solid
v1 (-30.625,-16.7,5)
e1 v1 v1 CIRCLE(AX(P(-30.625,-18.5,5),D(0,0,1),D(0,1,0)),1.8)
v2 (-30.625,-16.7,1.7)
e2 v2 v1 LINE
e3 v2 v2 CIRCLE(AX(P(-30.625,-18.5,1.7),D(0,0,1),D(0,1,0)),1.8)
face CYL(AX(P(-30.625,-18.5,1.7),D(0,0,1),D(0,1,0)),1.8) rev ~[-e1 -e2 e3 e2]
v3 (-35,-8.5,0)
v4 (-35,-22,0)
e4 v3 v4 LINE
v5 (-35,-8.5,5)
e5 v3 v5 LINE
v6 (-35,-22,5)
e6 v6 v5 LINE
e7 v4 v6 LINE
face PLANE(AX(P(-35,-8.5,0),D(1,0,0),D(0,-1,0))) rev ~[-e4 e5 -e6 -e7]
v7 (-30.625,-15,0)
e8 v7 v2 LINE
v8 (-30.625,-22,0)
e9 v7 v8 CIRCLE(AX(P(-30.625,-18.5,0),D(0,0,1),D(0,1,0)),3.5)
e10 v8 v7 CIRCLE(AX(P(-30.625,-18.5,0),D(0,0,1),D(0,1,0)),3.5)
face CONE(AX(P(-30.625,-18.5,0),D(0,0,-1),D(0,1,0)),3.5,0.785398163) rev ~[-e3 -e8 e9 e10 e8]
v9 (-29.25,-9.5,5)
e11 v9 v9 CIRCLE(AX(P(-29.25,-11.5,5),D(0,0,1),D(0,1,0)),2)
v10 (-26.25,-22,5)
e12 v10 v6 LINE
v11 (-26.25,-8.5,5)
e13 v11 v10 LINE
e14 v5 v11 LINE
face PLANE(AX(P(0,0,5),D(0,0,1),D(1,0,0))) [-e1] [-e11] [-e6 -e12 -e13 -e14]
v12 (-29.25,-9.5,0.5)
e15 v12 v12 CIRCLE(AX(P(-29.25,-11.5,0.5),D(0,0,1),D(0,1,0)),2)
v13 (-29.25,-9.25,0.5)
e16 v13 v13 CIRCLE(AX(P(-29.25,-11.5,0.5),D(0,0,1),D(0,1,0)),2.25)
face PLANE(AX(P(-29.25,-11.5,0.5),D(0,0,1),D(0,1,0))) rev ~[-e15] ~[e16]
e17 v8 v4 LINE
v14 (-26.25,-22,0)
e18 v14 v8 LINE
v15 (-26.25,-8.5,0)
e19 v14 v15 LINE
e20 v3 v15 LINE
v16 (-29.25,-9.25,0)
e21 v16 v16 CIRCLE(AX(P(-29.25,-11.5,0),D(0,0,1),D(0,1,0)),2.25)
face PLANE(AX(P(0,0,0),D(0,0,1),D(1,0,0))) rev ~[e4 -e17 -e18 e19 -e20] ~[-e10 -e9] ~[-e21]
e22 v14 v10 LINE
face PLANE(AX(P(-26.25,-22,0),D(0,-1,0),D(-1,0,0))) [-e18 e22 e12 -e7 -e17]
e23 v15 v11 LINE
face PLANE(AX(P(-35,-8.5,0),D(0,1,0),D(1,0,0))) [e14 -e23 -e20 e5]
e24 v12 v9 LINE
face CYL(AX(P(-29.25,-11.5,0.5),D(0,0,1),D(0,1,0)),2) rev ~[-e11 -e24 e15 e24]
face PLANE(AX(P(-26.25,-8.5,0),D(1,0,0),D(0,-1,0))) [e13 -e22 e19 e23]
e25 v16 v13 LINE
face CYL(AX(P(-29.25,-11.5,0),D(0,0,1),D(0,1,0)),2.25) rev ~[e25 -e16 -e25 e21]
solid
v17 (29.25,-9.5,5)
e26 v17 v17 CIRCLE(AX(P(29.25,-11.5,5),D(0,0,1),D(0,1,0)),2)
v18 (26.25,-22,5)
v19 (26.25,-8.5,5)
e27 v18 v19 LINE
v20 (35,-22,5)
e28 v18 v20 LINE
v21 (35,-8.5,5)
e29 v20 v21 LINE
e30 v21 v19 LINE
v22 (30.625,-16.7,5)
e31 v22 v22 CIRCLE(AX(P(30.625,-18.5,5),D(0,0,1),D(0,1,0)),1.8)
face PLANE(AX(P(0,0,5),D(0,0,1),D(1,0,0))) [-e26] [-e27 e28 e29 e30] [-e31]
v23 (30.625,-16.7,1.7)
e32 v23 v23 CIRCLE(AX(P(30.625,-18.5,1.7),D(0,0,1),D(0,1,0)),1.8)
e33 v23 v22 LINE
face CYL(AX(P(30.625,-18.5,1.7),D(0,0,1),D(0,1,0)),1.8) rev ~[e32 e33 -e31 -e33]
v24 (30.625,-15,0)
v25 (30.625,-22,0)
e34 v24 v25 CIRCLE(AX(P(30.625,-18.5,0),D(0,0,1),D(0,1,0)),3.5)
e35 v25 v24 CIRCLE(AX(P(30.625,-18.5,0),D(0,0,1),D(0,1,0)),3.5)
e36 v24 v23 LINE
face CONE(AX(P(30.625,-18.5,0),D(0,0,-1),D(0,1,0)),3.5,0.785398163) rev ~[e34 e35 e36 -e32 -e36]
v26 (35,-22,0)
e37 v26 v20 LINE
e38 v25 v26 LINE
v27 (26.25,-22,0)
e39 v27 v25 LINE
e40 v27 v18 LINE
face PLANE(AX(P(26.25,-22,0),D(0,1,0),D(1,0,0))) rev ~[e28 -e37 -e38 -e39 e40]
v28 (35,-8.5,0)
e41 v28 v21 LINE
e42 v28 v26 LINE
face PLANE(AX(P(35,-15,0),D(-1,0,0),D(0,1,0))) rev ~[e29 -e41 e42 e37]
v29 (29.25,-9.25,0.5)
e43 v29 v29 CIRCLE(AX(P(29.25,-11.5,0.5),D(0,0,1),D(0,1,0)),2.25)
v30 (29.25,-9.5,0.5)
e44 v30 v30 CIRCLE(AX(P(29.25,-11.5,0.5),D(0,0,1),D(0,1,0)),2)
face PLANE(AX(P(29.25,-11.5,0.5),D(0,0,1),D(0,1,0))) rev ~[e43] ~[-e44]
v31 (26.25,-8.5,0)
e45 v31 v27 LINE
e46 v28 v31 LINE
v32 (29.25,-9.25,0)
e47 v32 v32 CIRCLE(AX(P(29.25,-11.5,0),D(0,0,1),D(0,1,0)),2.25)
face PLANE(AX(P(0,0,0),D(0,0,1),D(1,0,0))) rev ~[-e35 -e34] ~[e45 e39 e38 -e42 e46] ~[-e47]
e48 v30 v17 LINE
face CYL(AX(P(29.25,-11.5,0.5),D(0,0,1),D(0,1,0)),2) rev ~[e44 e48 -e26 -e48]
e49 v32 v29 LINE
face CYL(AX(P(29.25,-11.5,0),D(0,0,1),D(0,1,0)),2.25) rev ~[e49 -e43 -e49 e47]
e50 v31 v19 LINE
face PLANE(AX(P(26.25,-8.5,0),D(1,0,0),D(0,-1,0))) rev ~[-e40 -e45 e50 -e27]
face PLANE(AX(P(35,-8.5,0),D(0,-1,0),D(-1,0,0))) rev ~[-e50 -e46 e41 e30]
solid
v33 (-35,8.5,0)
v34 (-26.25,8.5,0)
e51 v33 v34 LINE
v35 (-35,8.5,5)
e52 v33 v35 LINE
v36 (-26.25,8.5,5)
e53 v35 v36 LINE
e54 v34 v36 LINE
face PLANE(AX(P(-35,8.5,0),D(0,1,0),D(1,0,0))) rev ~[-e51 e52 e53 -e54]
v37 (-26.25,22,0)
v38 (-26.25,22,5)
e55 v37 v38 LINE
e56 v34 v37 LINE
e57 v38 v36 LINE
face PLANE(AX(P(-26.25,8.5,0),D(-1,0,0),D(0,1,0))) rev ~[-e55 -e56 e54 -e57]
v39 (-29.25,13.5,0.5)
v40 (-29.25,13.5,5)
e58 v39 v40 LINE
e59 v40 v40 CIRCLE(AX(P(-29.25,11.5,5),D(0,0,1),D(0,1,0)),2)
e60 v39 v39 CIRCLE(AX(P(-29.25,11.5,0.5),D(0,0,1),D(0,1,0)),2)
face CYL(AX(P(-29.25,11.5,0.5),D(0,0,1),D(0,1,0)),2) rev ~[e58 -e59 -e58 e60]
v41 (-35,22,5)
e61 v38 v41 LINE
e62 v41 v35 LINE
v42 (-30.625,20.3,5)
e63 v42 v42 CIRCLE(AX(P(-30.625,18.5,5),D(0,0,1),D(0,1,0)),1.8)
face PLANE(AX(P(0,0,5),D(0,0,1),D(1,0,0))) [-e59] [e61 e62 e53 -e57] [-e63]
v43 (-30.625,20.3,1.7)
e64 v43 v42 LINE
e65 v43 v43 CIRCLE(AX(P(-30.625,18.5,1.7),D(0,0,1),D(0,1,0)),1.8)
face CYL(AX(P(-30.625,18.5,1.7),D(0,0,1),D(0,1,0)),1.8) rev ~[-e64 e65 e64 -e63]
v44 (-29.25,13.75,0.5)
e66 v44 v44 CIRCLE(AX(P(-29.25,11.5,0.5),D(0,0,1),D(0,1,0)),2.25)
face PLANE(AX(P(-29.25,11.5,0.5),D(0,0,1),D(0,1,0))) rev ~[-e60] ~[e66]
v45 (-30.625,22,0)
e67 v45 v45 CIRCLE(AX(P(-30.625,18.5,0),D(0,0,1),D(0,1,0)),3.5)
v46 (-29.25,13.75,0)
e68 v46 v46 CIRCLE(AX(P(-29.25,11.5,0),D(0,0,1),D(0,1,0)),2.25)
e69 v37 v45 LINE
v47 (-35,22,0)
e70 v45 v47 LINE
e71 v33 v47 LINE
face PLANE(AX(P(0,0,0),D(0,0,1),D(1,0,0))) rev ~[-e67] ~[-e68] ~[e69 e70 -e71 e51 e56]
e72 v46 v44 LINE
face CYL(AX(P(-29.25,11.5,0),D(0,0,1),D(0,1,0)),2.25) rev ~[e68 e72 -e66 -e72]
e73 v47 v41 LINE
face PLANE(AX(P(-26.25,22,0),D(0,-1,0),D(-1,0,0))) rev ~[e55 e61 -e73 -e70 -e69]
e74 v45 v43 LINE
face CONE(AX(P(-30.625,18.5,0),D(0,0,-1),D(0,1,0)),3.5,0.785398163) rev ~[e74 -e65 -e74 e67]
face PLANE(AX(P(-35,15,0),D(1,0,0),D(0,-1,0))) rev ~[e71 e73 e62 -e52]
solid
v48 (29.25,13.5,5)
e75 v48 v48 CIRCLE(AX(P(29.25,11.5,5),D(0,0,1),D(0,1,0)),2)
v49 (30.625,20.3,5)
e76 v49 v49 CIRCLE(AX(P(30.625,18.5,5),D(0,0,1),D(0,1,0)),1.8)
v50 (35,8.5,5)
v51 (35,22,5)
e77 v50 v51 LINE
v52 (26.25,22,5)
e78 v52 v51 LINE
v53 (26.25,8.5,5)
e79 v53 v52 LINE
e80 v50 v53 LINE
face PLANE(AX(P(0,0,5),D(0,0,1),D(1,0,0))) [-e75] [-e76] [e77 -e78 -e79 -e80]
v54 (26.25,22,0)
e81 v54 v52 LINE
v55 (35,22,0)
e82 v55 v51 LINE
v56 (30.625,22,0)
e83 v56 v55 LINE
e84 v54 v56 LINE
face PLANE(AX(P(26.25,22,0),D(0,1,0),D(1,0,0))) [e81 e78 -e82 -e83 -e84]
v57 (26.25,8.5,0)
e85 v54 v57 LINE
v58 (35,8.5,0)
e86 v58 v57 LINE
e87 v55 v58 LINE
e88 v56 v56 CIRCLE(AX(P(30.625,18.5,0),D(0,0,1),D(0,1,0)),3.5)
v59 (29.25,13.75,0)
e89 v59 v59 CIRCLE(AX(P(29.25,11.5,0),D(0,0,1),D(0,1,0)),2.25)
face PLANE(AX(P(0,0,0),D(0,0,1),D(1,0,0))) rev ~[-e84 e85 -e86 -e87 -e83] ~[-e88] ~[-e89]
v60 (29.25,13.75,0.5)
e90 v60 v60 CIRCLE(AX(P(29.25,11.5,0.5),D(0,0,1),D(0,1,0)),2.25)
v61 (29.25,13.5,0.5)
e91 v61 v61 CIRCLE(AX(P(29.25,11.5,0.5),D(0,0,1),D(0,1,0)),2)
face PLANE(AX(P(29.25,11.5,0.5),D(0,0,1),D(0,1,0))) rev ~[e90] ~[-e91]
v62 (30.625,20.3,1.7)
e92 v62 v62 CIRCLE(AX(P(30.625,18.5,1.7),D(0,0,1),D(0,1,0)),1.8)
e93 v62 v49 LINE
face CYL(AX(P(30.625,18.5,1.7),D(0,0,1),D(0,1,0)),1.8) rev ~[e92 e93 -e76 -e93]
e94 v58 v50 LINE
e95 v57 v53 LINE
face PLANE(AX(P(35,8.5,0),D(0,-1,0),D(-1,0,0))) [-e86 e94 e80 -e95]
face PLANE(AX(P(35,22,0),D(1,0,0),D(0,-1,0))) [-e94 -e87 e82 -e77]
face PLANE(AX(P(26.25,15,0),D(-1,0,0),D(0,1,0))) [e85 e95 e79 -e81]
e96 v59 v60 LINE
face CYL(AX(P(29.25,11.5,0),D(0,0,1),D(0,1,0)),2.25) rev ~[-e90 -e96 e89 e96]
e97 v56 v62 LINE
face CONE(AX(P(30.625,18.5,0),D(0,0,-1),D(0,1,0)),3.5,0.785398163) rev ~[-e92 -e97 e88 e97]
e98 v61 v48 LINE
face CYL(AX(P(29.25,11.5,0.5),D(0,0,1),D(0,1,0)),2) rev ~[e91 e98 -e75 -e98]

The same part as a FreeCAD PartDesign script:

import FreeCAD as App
import Part
import Sketcher


def add_polygon(sketch, points):
    """Adds a closed chain of lines whose ends are joined by coincident constraints."""
    first, n = sketch.GeometryCount, len(points)
    for a, b in zip(points, points[1:] + points[:1]):
        sketch.addGeometry(Part.LineSegment(App.Vector(*a, 0), App.Vector(*b, 0)), False)
    for i in range(n):
        sketch.addConstraint(Sketcher.Constraint("Coincident", first + i, 2, first + (i + 1) % n, 1))

doc = App.newDocument("Part")
body = doc.addObject("PartDesign::Body", "Body")
body.AllowCompound = True

# Sketch on XY plane
sketch1 = doc.addObject("Sketcher::SketchObject", "Sketch")
body.addObject(sketch1)
sketch1.AttachmentSupport = (doc.XY_Plane, [""])
sketch1.MapMode = "FlatFace"
add_polygon(sketch1, [(-26, 8), (-26, 22), (-35, 22), (-35, 8)])  # lines 0-3
add_polygon(sketch1, [(-26, -8), (-35, -8), (-35, -22), (-26, -22)])  # lines 4-7
add_polygon(sketch1, [(26, 22), (26, 8), (35, 8), (35, 22)])  # lines 8-11
add_polygon(sketch1, [(26, -8), (26, -22), (35, -22), (35, -8)])  # lines 12-15
sketch1.addConstraint(Sketcher.Constraint("Vertical", 0))
sketch1.addConstraint(Sketcher.Constraint("Horizontal", 1))
sketch1.addConstraint(Sketcher.Constraint("Vertical", 2))
sketch1.addConstraint(Sketcher.Constraint("Horizontal", 3))
sketch1.addConstraint(Sketcher.Constraint("Horizontal", 4))
sketch1.addConstraint(Sketcher.Constraint("Vertical", 5))
sketch1.addConstraint(Sketcher.Constraint("Horizontal", 6))
sketch1.addConstraint(Sketcher.Constraint("Vertical", 7))
sketch1.addConstraint(Sketcher.Constraint("Vertical", 8))
sketch1.addConstraint(Sketcher.Constraint("Horizontal", 9))
sketch1.addConstraint(Sketcher.Constraint("Vertical", 10))
sketch1.addConstraint(Sketcher.Constraint("Horizontal", 11))
sketch1.addConstraint(Sketcher.Constraint("Vertical", 12))
sketch1.addConstraint(Sketcher.Constraint("Horizontal", 13))
sketch1.addConstraint(Sketcher.Constraint("Vertical", 14))
sketch1.addConstraint(Sketcher.Constraint("Horizontal", 15))
sketch1.addConstraint(Sketcher.Constraint("Symmetric", 7, 2, 8, 2, -1, 1))
sketch1.addConstraint(Sketcher.Constraint("Symmetric", 5, 2, 10, 2, -1, 1))
sketch1.addConstraint(Sketcher.Constraint("Symmetric", 0, 2, 12, 2, -1, 1))
sketch1.addConstraint(Sketcher.Constraint("Symmetric", 2, 2, 14, 2, -1, 1))
sketch1.addConstraint(Sketcher.Constraint("Symmetric", 3, 2, 8, 2, -2))
sketch1.addConstraint(Sketcher.Constraint("Symmetric", 1, 2, 10, 2, -2))
sketch1.addConstraint(Sketcher.Constraint("DistanceY", 0, 1, 0, 2, 13.5))
sketch1.addConstraint(Sketcher.Constraint("DistanceY", -1, 1, 0, 2, 22.0))
sketch1.addConstraint(Sketcher.Constraint("DistanceX", 1, 2, -1, 1, 35.0))
sketch1.addConstraint(Sketcher.Constraint("DistanceX", 1, 2, 1, 1, 8.75))
pad1 = doc.addObject("PartDesign::Pad", "Pad")
body.addObject(pad1)
pad1.Profile = sketch1
pad1.Length = 5

# Sketch on XY plane
sketch2 = doc.addObject("Sketcher::SketchObject", "Sketch001")
body.addObject(sketch2)
sketch2.AttachmentSupport = (doc.XY_Plane, [""])
sketch2.MapMode = "FlatFace"
sketch2.addGeometry(Part.Circle(App.Vector(29.2, 11.5, 0), App.Vector(0, 0, 1), 2), False)
sketch2.addGeometry(Part.Circle(App.Vector(29.2, -11.5, 0), App.Vector(0, 0, 1), 2), False)
sketch2.addGeometry(Part.Circle(App.Vector(-29.2, -11.5, 0), App.Vector(0, 0, 1), 2), False)
sketch2.addGeometry(Part.Circle(App.Vector(-29.2, 11.5, 0), App.Vector(0, 0, 1), 2), False)
sketch2.addConstraint(Sketcher.Constraint("Equal", 0, 1))
sketch2.addConstraint(Sketcher.Constraint("Equal", 1, 2))
sketch2.addConstraint(Sketcher.Constraint("Equal", 2, 3))
sketch2.addConstraint(Sketcher.Constraint("Symmetric", 0, 3, 2, 3, -1, 1))
sketch2.addConstraint(Sketcher.Constraint("Symmetric", 1, 3, 3, 3, -1, 1))
sketch2.addConstraint(Sketcher.Constraint("Symmetric", 1, 3, 2, 3, -2))
sketch2.addConstraint(Sketcher.Constraint("Diameter", 0, 4.0))
sketch2.addConstraint(Sketcher.Constraint("DistanceY", 1, 3, 0, 3, 23.0))
sketch2.addConstraint(Sketcher.Constraint("DistanceX", 2, 3, 1, 3, 58.5))
doc.recompute()
hole = doc.addObject("PartDesign::Hole", "Hole")
body.addObject(hole)
hole.Profile = sketch2
hole.ThreadType = "None"
hole.Diameter = 4
hole.DepthType = "Dimension"
hole.Depth = 5
hole.DrillPoint = "Flat"
hole.HoleCutType = "Counterbore"
hole.HoleCutDiameter = 4.5
hole.HoleCutDepth = 0.5
hole.Reversed = True

# Sketch on XY plane
sketch3 = doc.addObject("Sketcher::SketchObject", "Sketch002")
body.addObject(sketch3)
sketch3.AttachmentSupport = (doc.XY_Plane, [""])
sketch3.MapMode = "FlatFace"
sketch3.addGeometry(Part.Circle(App.Vector(-30.6, 18.5, 0), App.Vector(0, 0, 1), 1.8), False)
sketch3.addGeometry(Part.Circle(App.Vector(-30.6, -18.5, 0), App.Vector(0, 0, 1), 1.8), False)
sketch3.addGeometry(Part.Circle(App.Vector(30.6, -18.5, 0), App.Vector(0, 0, 1), 1.8), False)
sketch3.addGeometry(Part.Circle(App.Vector(30.6, 18.5, 0), App.Vector(0, 0, 1), 1.8), False)
sketch3.addConstraint(Sketcher.Constraint("Equal", 0, 1))
sketch3.addConstraint(Sketcher.Constraint("Equal", 1, 2))
sketch3.addConstraint(Sketcher.Constraint("Equal", 2, 3))
sketch3.addConstraint(Sketcher.Constraint("Symmetric", 0, 3, 2, 3, -1, 1))
sketch3.addConstraint(Sketcher.Constraint("Symmetric", 1, 3, 3, 3, -1, 1))
sketch3.addConstraint(Sketcher.Constraint("Symmetric", 1, 3, 2, 3, -2))
sketch3.addConstraint(Sketcher.Constraint("Diameter", 0, 3.6))
sketch3.addConstraint(Sketcher.Constraint("DistanceY", 1, 3, 0, 3, 37.0))
sketch3.addConstraint(Sketcher.Constraint("DistanceX", 1, 3, 2, 3, 61.25))
doc.recompute()
hole2 = doc.addObject("PartDesign::Hole", "Hole001")
body.addObject(hole2)
hole2.Profile = sketch3
hole2.ThreadType = "None"
hole2.Diameter = 3.6
hole2.DepthType = "Dimension"
hole2.Depth = 5
hole2.DrillPoint = "Flat"
hole2.HoleCutType = "Countersink"
hole2.HoleCutDiameter = 7
hole2.HoleCutCountersinkAngle = 90
hole2.Reversed = True

doc.recompute()
